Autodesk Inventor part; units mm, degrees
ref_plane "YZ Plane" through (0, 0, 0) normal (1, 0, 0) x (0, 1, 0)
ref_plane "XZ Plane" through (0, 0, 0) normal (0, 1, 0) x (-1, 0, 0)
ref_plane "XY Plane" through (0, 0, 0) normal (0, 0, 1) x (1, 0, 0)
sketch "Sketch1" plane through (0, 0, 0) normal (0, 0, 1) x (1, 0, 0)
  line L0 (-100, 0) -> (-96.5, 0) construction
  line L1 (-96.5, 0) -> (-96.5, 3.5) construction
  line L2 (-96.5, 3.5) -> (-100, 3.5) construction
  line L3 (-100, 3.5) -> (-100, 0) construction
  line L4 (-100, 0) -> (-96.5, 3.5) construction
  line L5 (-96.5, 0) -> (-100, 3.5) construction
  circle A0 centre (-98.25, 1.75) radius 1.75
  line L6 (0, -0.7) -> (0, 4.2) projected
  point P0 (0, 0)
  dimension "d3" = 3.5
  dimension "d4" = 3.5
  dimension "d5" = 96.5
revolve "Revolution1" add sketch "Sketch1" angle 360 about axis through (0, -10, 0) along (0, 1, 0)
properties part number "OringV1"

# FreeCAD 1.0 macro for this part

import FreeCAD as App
import Part
import Sketcher

V = App.Vector
Q = App.Units.Quantity

doc = App.newDocument("Part")
body = doc.addObject("PartDesign::Body", "Body")

# Sketch on XY plane
sketch1 = body.newObject("Sketcher::SketchObject", "Sketch")
sketch1.AttachmentSupport = (doc.getObject("XY_Plane"), [""])
sketch1.MapMode = "FlatFace"
sketch1.addGeometry(Part.Circle(V(-98.2, 1.8, 0), V(0, 0, 1), 1.8), False)
sketch1.addConstraint([
    Sketcher.Constraint("Diameter", 0, Q("3.5 mm")),
    Sketcher.Constraint("DistanceX", 0, 3, -1, 1, Q("98.25 mm")),
    Sketcher.Constraint("DistanceY", -1, 1, 0, 3, Q("1.75 mm")),
])
revolution = body.newObject("PartDesign::Revolution", "Revolution")
revolution.Profile = sketch1
revolution.ReferenceAxis = (sketch1, ["V_Axis"])
revolution.Angle = 360

doc.recompute()
